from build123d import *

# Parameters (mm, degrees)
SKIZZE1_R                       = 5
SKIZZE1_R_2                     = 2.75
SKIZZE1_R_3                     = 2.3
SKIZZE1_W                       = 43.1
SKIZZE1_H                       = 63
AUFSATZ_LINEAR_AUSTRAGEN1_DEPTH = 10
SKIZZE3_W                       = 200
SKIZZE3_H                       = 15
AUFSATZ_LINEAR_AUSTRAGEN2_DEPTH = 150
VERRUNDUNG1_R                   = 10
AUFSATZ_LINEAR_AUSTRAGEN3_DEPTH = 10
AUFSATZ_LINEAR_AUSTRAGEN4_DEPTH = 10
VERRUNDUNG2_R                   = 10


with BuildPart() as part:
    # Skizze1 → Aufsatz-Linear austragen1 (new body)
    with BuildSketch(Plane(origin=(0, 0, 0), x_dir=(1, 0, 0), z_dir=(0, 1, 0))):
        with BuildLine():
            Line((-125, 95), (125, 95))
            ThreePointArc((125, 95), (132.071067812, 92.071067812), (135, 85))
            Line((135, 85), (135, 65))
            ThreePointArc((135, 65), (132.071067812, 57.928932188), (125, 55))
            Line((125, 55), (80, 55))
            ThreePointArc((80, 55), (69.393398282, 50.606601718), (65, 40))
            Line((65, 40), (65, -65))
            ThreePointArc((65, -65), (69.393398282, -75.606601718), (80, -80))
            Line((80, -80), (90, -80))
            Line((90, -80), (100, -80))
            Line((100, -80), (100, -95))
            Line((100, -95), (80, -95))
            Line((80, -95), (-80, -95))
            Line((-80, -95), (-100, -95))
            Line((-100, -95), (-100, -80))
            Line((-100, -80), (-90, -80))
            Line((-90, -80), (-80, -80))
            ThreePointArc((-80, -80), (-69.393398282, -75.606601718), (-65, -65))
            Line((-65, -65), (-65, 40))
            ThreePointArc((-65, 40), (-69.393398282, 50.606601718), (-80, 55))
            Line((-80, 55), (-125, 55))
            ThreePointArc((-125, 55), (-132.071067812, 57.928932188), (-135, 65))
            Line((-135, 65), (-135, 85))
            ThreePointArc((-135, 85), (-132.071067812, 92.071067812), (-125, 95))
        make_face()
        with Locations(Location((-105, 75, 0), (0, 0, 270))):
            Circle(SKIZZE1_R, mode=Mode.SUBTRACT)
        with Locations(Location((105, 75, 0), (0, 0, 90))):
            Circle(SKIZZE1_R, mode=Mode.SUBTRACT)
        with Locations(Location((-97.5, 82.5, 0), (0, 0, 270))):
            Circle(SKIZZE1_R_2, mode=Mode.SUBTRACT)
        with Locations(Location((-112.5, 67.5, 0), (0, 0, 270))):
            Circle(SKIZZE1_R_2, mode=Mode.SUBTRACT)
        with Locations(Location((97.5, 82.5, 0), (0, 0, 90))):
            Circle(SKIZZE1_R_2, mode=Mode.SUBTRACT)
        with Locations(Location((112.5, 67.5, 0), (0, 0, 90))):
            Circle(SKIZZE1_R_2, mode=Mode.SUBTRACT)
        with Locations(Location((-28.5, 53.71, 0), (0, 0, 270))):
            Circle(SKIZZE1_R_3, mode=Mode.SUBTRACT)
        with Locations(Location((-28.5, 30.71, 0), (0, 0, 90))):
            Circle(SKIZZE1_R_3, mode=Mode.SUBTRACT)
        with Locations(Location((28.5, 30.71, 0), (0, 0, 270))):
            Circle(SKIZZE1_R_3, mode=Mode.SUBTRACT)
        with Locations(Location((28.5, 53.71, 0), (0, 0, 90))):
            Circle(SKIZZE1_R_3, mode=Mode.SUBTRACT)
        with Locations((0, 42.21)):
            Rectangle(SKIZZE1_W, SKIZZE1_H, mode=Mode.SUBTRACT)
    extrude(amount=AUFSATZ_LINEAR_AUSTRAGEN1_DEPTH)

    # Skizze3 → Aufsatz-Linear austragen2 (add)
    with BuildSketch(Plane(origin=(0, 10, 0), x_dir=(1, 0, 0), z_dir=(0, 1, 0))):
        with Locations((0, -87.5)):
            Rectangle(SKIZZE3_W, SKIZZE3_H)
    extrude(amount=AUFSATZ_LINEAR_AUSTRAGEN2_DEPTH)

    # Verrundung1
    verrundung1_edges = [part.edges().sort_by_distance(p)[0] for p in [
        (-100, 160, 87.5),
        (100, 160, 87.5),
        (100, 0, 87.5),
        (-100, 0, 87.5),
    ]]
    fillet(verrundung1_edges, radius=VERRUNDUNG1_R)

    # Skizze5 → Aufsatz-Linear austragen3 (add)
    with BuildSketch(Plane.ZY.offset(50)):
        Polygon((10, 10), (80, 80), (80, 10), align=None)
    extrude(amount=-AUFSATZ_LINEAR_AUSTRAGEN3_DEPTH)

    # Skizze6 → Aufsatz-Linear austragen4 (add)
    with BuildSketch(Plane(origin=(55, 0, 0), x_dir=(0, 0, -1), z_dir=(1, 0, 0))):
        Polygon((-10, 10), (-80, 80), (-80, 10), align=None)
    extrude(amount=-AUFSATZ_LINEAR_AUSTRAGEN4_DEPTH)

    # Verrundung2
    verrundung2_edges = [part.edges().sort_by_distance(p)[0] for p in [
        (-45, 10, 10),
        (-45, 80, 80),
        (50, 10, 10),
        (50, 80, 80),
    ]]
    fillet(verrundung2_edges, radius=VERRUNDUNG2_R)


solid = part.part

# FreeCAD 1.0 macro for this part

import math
import FreeCAD as App
import Part
import Sketcher
Q = App.Units.Quantity


def edges_at(feature, points):
    """Names of the edges that pass closest to the given points."""
    edges = feature.Shape.Edges
    near = lambda p: min(range(len(edges)), key=lambda i: edges[i].distToShape(Part.Vertex(*p))[0])
    return sorted({f"Edge{near(p) + 1}" for p in points})


def add_polygon(sketch, points):
    """Adds a closed chain of lines whose ends are joined by coincident constraints."""
    first, n = sketch.GeometryCount, len(points)
    for a, b in zip(points, points[1:] + points[:1]):
        sketch.addGeometry(Part.LineSegment(App.Vector(*a, 0), App.Vector(*b, 0)), False)
    for i in range(n):
        sketch.addConstraint(Sketcher.Constraint("Coincident", first + i, 2, first + (i + 1) % n, 1))

doc = App.newDocument("Part")
body = doc.addObject("PartDesign::Body", "Body")

# Sketch on XZ plane
sketch1 = doc.addObject("Sketcher::SketchObject", "Sketch")
body.addObject(sketch1)
sketch1.AttachmentSupport = (doc.XZ_Plane, [""])
sketch1.MapMode = "FlatFace"
sketch1.addGeometry(Part.LineSegment(App.Vector(125, -95, 0), App.Vector(-125, -95, 0)), False)  # 0
sketch1.addGeometry(Part.ArcOfCircle(Part.Circle(App.Vector(-125, -85, 0), App.Vector(0, 0, 1), 10), math.radians(180), math.radians(270)), False)  # 1
sketch1.addGeometry(Part.LineSegment(App.Vector(-135, -85, 0), App.Vector(-135, -65, 0)), False)  # 2
sketch1.addGeometry(Part.ArcOfCircle(Part.Circle(App.Vector(-125, -65, 0), App.Vector(0, 0, 1), 10), math.radians(90), math.radians(180)), False)  # 3
sketch1.addGeometry(Part.LineSegment(App.Vector(-125, -55, 0), App.Vector(-80, -55, 0)), False)  # 4
sketch1.addGeometry(Part.ArcOfCircle(Part.Circle(App.Vector(-80, -40, 0), App.Vector(0, 0, 1), 15), math.radians(-90), math.radians(0)), False)  # 5
sketch1.addGeometry(Part.LineSegment(App.Vector(-65, -40, 0), App.Vector(-65, 65, 0)), False)  # 6
sketch1.addGeometry(Part.ArcOfCircle(Part.Circle(App.Vector(-80, 65, 0), App.Vector(0, 0, 1), 15), math.radians(0), math.radians(90)), False)  # 7
sketch1.addGeometry(Part.LineSegment(App.Vector(-80, 80, 0), App.Vector(-100, 80, 0)), False)  # 8
sketch1.addGeometry(Part.LineSegment(App.Vector(-100, 80, 0), App.Vector(-100, 95, 0)), False)  # 9
sketch1.addGeometry(Part.LineSegment(App.Vector(-100, 95, 0), App.Vector(100, 95, 0)), False)  # 10
sketch1.addGeometry(Part.LineSegment(App.Vector(100, 95, 0), App.Vector(100, 80, 0)), False)  # 11
sketch1.addGeometry(Part.LineSegment(App.Vector(100, 80, 0), App.Vector(80, 80, 0)), False)  # 12
sketch1.addGeometry(Part.ArcOfCircle(Part.Circle(App.Vector(80, 65, 0), App.Vector(0, 0, 1), 15), math.radians(90), math.radians(180)), False)  # 13
sketch1.addGeometry(Part.LineSegment(App.Vector(65, 65, 0), App.Vector(65, -40, 0)), False)  # 14
sketch1.addGeometry(Part.ArcOfCircle(Part.Circle(App.Vector(80, -40, 0), App.Vector(0, 0, 1), 15), math.radians(180), math.radians(270)), False)  # 15
sketch1.addGeometry(Part.LineSegment(App.Vector(80, -55, 0), App.Vector(125, -55, 0)), False)  # 16
sketch1.addGeometry(Part.ArcOfCircle(Part.Circle(App.Vector(125, -65, 0), App.Vector(0, 0, 1), 10), math.radians(0), math.radians(90)), False)  # 17
sketch1.addGeometry(Part.LineSegment(App.Vector(135, -65, 0), App.Vector(135, -85, 0)), False)  # 18
sketch1.addGeometry(Part.ArcOfCircle(Part.Circle(App.Vector(125, -85, 0), App.Vector(0, 0, 1), 10), math.radians(-90), math.radians(0)), False)  # 19
sketch1.addGeometry(Part.Circle(App.Vector(28.5, -30.7, 0), App.Vector(0, 0, 1), 2.3), False)  # 20
sketch1.addGeometry(Part.Circle(App.Vector(-28.5, -30.7, 0), App.Vector(0, 0, 1), 2.3), False)  # 21
add_polygon(sketch1, [(-21.6, -10.7), (-21.6, -73.7), (21.6, -73.7), (21.6, -10.7)])  # lines 22-25
sketch1.addGeometry(Part.Circle(App.Vector(28.5, -53.7, 0), App.Vector(0, 0, 1), 2.3), False)  # 26
sketch1.addGeometry(Part.Circle(App.Vector(112.5, -67.5, 0), App.Vector(0, 0, 1), 2.8), False)  # 27
sketch1.addGeometry(Part.Circle(App.Vector(105, -75, 0), App.Vector(0, 0, 1), 5), False)  # 28
sketch1.addGeometry(Part.Circle(App.Vector(97.5, -82.5, 0), App.Vector(0, 0, 1), 2.8), False)  # 29
sketch1.addGeometry(Part.Circle(App.Vector(-28.5, -53.7, 0), App.Vector(0, 0, 1), 2.3), False)  # 30
sketch1.addGeometry(Part.Circle(App.Vector(-112.5, -67.5, 0), App.Vector(0, 0, 1), 2.8), False)  # 31
sketch1.addGeometry(Part.Circle(App.Vector(-105, -75, 0), App.Vector(0, 0, 1), 5), False)  # 32
sketch1.addGeometry(Part.Circle(App.Vector(-97.5, -82.5, 0), App.Vector(0, 0, 1), 2.8), False)  # 33
sketch1.addConstraint(Sketcher.Constraint("Tangent", 0, 2, 1, 2))
sketch1.addConstraint(Sketcher.Constraint("Tangent", 1, 1, 2, 1))
sketch1.addConstraint(Sketcher.Constraint("Tangent", 2, 2, 3, 2))
sketch1.addConstraint(Sketcher.Constraint("Tangent", 3, 1, 4, 1))
sketch1.addConstraint(Sketcher.Constraint("Tangent", 4, 2, 5, 1))
sketch1.addConstraint(Sketcher.Constraint("Tangent", 5, 2, 6, 1))
sketch1.addConstraint(Sketcher.Constraint("Tangent", 6, 2, 7, 1))
sketch1.addConstraint(Sketcher.Constraint("Tangent", 7, 2, 8, 1))
sketch1.addConstraint(Sketcher.Constraint("Coincident", 8, 2, 9, 1))
sketch1.addConstraint(Sketcher.Constraint("Coincident", 9, 2, 10, 1))
sketch1.addConstraint(Sketcher.Constraint("Coincident", 10, 2, 11, 1))
sketch1.addConstraint(Sketcher.Constraint("Coincident", 11, 2, 12, 1))
sketch1.addConstraint(Sketcher.Constraint("Tangent", 12, 2, 13, 1))
sketch1.addConstraint(Sketcher.Constraint("Tangent", 13, 2, 14, 1))
sketch1.addConstraint(Sketcher.Constraint("Tangent", 14, 2, 15, 1))
sketch1.addConstraint(Sketcher.Constraint("Tangent", 15, 2, 16, 1))
sketch1.addConstraint(Sketcher.Constraint("Tangent", 16, 2, 17, 2))
sketch1.addConstraint(Sketcher.Constraint("Tangent", 17, 1, 18, 1))
sketch1.addConstraint(Sketcher.Constraint("Tangent", 18, 2, 19, 2))
sketch1.addConstraint(Sketcher.Constraint("Tangent", 19, 1, 0, 1))
sketch1.addConstraint(Sketcher.Constraint("Horizontal", 0))
sketch1.addConstraint(Sketcher.Constraint("Vertical", 2))
sketch1.addConstraint(Sketcher.Constraint("Horizontal", 4))
sketch1.addConstraint(Sketcher.Constraint("Vertical", 6))
sketch1.addConstraint(Sketcher.Constraint("Horizontal", 8))
sketch1.addConstraint(Sketcher.Constraint("Vertical", 9))
sketch1.addConstraint(Sketcher.Constraint("Horizontal", 10))
sketch1.addConstraint(Sketcher.Constraint("Vertical", 11))
sketch1.addConstraint(Sketcher.Constraint("Horizontal", 12))
sketch1.addConstraint(Sketcher.Constraint("Vertical", 14))
sketch1.addConstraint(Sketcher.Constraint("Horizontal", 16))
sketch1.addConstraint(Sketcher.Constraint("Vertical", 18))
sketch1.addConstraint(Sketcher.Constraint("Vertical", 22))
sketch1.addConstraint(Sketcher.Constraint("Horizontal", 23))
sketch1.addConstraint(Sketcher.Constraint("Vertical", 24))
sketch1.addConstraint(Sketcher.Constraint("Horizontal", 25))
sketch1.addConstraint(Sketcher.Constraint("Equal", 1, 3))
sketch1.addConstraint(Sketcher.Constraint("Equal", 5, 7))
sketch1.addConstraint(Sketcher.Constraint("Equal", 7, 13))
sketch1.addConstraint(Sketcher.Constraint("Equal", 13, 15))
sketch1.addConstraint(Sketcher.Constraint("Equal", 3, 17))
sketch1.addConstraint(Sketcher.Constraint("Equal", 17, 19))
sketch1.addConstraint(Sketcher.Constraint("Equal", 20, 21))
sketch1.addConstraint(Sketcher.Constraint("Equal", 21, 26))
sketch1.addConstraint(Sketcher.Constraint("Equal", 27, 29))
sketch1.addConstraint(Sketcher.Constraint("Equal", 26, 30))
sketch1.addConstraint(Sketcher.Constraint("Equal", 29, 31))
sketch1.addConstraint(Sketcher.Constraint("Equal", 28, 32))
sketch1.addConstraint(Sketcher.Constraint("Equal", 31, 33))
sketch1.addConstraint(Sketcher.Constraint("Symmetric", 7, 3, 13, 3, -2))
sketch1.addConstraint(Sketcher.Constraint("Symmetric", 3, 3, 17, 3, -2))
sketch1.addConstraint(Sketcher.Constraint("Symmetric", 20, 3, 21, 3, -2))
sketch1.addConstraint(Sketcher.Constraint("Symmetric", 26, 3, 30, 3, -2))
sketch1.addConstraint(Sketcher.Constraint("Symmetric", 27, 3, 31, 3, -2))
sketch1.addConstraint(Sketcher.Constraint("Symmetric", 28, 3, 32, 3, -2))
sketch1.addConstraint(Sketcher.Constraint("Symmetric", 29, 3, 33, 3, -2))
sketch1.addConstraint(Sketcher.Constraint("Vertical", 20, 3, 26, 3))
sketch1.addConstraint(Sketcher.Constraint("Equal", 8, 12))
sketch1.addConstraint(Sketcher.Constraint("Equal", 12, 2))
sketch1.addConstraint(Sketcher.Constraint("Diameter", 28, Q("10 mm")))
sketch1.addConstraint(Sketcher.Constraint("Radius", 1, Q("10 mm")))
sketch1.addConstraint(Sketcher.Constraint("Radius", 5, Q("15 mm")))
sketch1.addConstraint(Sketcher.Constraint("Diameter", 20, Q("4.6 mm")))
sketch1.addConstraint(Sketcher.Constraint("Diameter", 27, Q("5.5 mm")))
sketch1.addConstraint(Sketcher.Constraint("DistanceX", 0, 2, 0, 1, Q("250 mm")))
sketch1.addConstraint(Sketcher.Constraint("DistanceX", 4, 1, 4, 2, Q("45 mm")))
sketch1.addConstraint(Sketcher.Constraint("DistanceX", 8, 2, 8, 1, Q("20 mm")))
sketch1.addConstraint(Sketcher.Constraint("DistanceY", 6, 1, 6, 2, Q("105 mm")))
sketch1.addConstraint(Sketcher.Constraint("DistanceY", 9, 1, 9, 2, Q("15 mm")))
sketch1.addConstraint(Sketcher.Constraint("DistanceY", 22, 2, 22, 1, Q("63 mm")))
sketch1.addConstraint(Sketcher.Constraint("DistanceX", 23, 1, 23, 2, Q("43.1 mm")))
sketch1.addConstraint(Sketcher.Constraint("DistanceY", 1, 3, -1, 1, Q("85 mm")))
sketch1.addConstraint(Sketcher.Constraint("DistanceX", -1, 1, 28, 3, Q("105 mm")))
sketch1.addConstraint(Sketcher.Constraint("DistanceY", 28, 3, -1, 1, Q("75 mm")))
sketch1.addConstraint(Sketcher.Constraint("DistanceX", 21, 3, 20, 3, Q("57 mm")))
sketch1.addConstraint(Sketcher.Constraint("DistanceY", 26, 3, 20, 3, Q("23 mm")))
sketch1.addConstraint(Sketcher.Constraint("DistanceX", 26, 3, 27, 3, Q("84 mm")))
sketch1.addConstraint(Sketcher.Constraint("DistanceX", 29, 3, 27, 3, Q("15 mm")))
sketch1.addConstraint(Sketcher.Constraint("DistanceY", 29, 3, 27, 3, Q("15 mm")))
sketch1.addConstraint(Sketcher.Constraint("DistanceY", 22, 2, 30, 3, Q("20 mm")))
sketch1.addConstraint(Sketcher.Constraint("DistanceY", 27, 3, -1, 1, Q("67.5 mm")))
sketch1.addConstraint(Sketcher.Constraint("DistanceY", 20, 3, -1, 1, Q("30.71 mm")))
sketch1.addConstraint(Sketcher.Constraint("DistanceX", 22, 2, -1, 1, Q("21.55 mm")))
pad1 = doc.addObject("PartDesign::Pad", "Pad")
body.addObject(pad1)
pad1.Profile = sketch1
pad1.Length = 10
pad1.Reversed = True

# Sketch on XZ plane
sketch2 = doc.addObject("Sketcher::SketchObject", "Sketch001")
body.addObject(sketch2)
sketch2.AttachmentSupport = (doc.XZ_Plane, [""])
sketch2.MapMode = "FlatFace"
sketch2.AttachmentOffset = App.Placement(App.Vector(0, 0, -10), App.Rotation())
add_polygon(sketch2, [(-100, 80), (-100, 95), (100, 95), (100, 80)])  # lines 0-3
sketch2.addConstraint(Sketcher.Constraint("Vertical", 0))
sketch2.addConstraint(Sketcher.Constraint("Horizontal", 1))
sketch2.addConstraint(Sketcher.Constraint("Vertical", 2))
sketch2.addConstraint(Sketcher.Constraint("Horizontal", 3))
sketch2.addConstraint(Sketcher.Constraint("DistanceX", 1, 1, 1, 2, Q("200 mm")))
sketch2.addConstraint(Sketcher.Constraint("DistanceY", 0, 1, 0, 2, Q("15 mm")))
sketch2.addConstraint(Sketcher.Constraint("DistanceX", 0, 2, -1, 1, Q("100 mm")))
sketch2.addConstraint(Sketcher.Constraint("DistanceY", -1, 1, 0, 2, Q("95 mm")))
pad2 = doc.addObject("PartDesign::Pad", "Pad001")
body.addObject(pad2)
pad2.Profile = sketch2
pad2.Length = 150
pad2.Reversed = True
doc.recompute()

fillet = doc.addObject("PartDesign::Fillet", "Fillet")
body.addObject(fillet)
fillet.Base = (pad2, edges_at(pad2, [
    (-100, 160, 87.5),
    (100, 160, 87.5),
    (100, 0, 87.5),
    (-100, 0, 87.5),
]))
fillet.Radius = 10

# Sketch on YZ plane
sketch3 = doc.addObject("Sketcher::SketchObject", "Sketch002")
body.addObject(sketch3)
sketch3.AttachmentSupport = (doc.YZ_Plane, [""])
sketch3.MapMode = "FlatFace"
sketch3.AttachmentOffset = App.Placement(App.Vector(0, 0, -50), App.Rotation())
add_polygon(sketch3, [(80, 80), (10, 10), (10, 80)])  # lines 0-2
sketch3.addConstraint(Sketcher.Constraint("Vertical", 1))
sketch3.addConstraint(Sketcher.Constraint("Horizontal", 2))
sketch3.addConstraint(Sketcher.Constraint("Equal", 2, 1))
sketch3.addConstraint(Sketcher.Constraint("DistanceX", 2, 1, 2, 2, Q("70 mm")))
sketch3.addConstraint(Sketcher.Constraint("DistanceX", -1, 1, 0, 2, Q("10 mm")))
sketch3.addConstraint(Sketcher.Constraint("DistanceY", -1, 1, 0, 2, Q("10 mm")))
pad3 = doc.addObject("PartDesign::Pad", "Pad002")
body.addObject(pad3)
pad3.Profile = sketch3
pad3.Length = 10

# Sketch on YZ plane
sketch4 = doc.addObject("Sketcher::SketchObject", "Sketch003")
body.addObject(sketch4)
sketch4.AttachmentSupport = (doc.YZ_Plane, [""])
sketch4.MapMode = "FlatFace"
sketch4.AttachmentOffset = App.Placement(App.Vector(0, 0, 55), App.Rotation())
add_polygon(sketch4, [(10, 10), (80, 80), (10, 80)])  # lines 0-2
sketch4.addConstraint(Sketcher.Constraint("Horizontal", 1))
sketch4.addConstraint(Sketcher.Constraint("Vertical", 2))
sketch4.addConstraint(Sketcher.Constraint("Equal", 1, 2))
sketch4.addConstraint(Sketcher.Constraint("DistanceX", 1, 2, 1, 1, Q("70 mm")))
sketch4.addConstraint(Sketcher.Constraint("DistanceX", -1, 1, 0, 2, Q("80 mm")))
sketch4.addConstraint(Sketcher.Constraint("DistanceY", -1, 1, 0, 2, Q("80 mm")))
pad4 = doc.addObject("PartDesign::Pad", "Pad003")
body.addObject(pad4)
pad4.Profile = sketch4
pad4.Length = 10
pad4.Reversed = True
doc.recompute()

fillet2 = doc.addObject("PartDesign::Fillet", "Fillet001")
body.addObject(fillet2)
fillet2.Base = (pad4, edges_at(pad4, [
    (-45, 10, 10),
    (-45, 80, 80),
    (50, 10, 10),
    (50, 80, 80),
]))
fillet2.Radius = 10

doc.recompute()
